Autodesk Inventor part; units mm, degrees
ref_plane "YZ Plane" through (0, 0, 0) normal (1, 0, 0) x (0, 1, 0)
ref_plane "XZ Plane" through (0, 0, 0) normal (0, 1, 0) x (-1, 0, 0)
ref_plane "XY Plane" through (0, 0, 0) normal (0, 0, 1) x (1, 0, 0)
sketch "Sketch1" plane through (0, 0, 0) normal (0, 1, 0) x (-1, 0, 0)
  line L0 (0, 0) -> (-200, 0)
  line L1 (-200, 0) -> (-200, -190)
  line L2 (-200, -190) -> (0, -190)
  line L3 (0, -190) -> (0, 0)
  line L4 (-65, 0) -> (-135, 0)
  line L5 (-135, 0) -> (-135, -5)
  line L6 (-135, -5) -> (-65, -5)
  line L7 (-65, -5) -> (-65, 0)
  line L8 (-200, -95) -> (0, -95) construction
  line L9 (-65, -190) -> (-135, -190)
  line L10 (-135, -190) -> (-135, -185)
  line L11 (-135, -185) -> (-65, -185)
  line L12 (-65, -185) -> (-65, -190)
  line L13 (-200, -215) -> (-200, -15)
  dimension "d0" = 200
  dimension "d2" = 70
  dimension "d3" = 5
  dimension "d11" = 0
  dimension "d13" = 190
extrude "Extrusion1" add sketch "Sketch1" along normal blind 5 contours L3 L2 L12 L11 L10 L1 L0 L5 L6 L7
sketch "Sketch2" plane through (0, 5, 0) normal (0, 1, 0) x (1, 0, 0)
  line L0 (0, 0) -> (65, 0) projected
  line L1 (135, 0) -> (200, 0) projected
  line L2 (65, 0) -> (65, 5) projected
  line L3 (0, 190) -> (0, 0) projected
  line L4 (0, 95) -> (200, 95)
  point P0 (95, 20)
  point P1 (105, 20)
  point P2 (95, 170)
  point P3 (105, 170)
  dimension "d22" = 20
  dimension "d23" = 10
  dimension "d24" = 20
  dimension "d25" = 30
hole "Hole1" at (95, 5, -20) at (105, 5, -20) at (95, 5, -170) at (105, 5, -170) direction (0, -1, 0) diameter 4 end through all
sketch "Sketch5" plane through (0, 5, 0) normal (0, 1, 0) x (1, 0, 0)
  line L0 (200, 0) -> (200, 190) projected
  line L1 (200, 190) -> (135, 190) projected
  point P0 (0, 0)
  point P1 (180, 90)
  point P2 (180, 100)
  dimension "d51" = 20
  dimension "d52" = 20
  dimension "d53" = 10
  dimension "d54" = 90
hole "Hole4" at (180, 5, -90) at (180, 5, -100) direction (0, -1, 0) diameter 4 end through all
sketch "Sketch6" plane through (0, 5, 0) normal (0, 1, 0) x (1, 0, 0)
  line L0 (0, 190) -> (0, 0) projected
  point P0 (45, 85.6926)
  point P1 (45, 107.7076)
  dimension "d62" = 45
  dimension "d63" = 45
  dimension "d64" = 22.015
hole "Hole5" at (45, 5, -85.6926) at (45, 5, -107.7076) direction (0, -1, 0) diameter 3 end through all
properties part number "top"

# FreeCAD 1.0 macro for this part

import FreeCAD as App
import Part
import Sketcher

V = App.Vector

doc = App.newDocument("Part")
params = doc.addObject("Spreadsheet::Sheet", "Params")
for row, (alias, value) in enumerate([
    ("sketch1_width", "70 mm"),
    ("sketch1_height", "190 mm"),
    ("sketch1_height2", "5 mm"),
    ("pad1_length", "5 mm"),
    ("sketch2_diameter", "4 mm"),
    ("hole_diameter", "4 mm"),
    ("sketch3_diameter", "4 mm"),
    ("hole2_diameter", "4 mm"),
    ("sketch4_diameter", "3 mm"),
    ("hole3_diameter", "3 mm"),
], start=1):
    params.set(f"A{row}", alias)
    params.set(f"B{row}", "=" + value)
    params.setAlias(f"B{row}", alias)

body = doc.addObject("PartDesign::Body", "Body")

sketch1 = doc.addObject("Sketcher::SketchObject", "Sketch")
body.addObject(sketch1)
sketch1.AttachmentSupport = (doc.XZ_Plane, [""])
sketch1.MapMode = "FlatFace"
sketch1.addGeometry([
    Part.LineSegment(V(0, -190, 0), V(0, 0, 0)),
    Part.LineSegment(V(0, 0, 0), V(65, 0, 0)),
    Part.LineSegment(V(65, 0, 0), V(65, -5, 0)),
    Part.LineSegment(V(65, -5, 0), V(135, -5, 0)),
    Part.LineSegment(V(135, -5, 0), V(135, 0, 0)),
    Part.LineSegment(V(135, 0, 0), V(200, 0, 0)),
    Part.LineSegment(V(200, 0, 0), V(200, -190, 0)),
    Part.LineSegment(V(200, -190, 0), V(135, -190, 0)),
    Part.LineSegment(V(135, -190, 0), V(135, -185, 0)),
    Part.LineSegment(V(135, -185, 0), V(65, -185, 0)),
    Part.LineSegment(V(65, -185, 0), V(65, -190, 0)),
    Part.LineSegment(V(65, -190, 0), V(0, -190, 0)),
], False)
sketch1.addConstraint([
    Sketcher.Constraint("Coincident", 0, 2, 1, 1),
    Sketcher.Constraint("Coincident", 1, 2, 2, 1),
    Sketcher.Constraint("Coincident", 2, 2, 3, 1),
    Sketcher.Constraint("Coincident", 3, 2, 4, 1),
    Sketcher.Constraint("Coincident", 4, 2, 5, 1),
    Sketcher.Constraint("Coincident", 5, 2, 6, 1),
    Sketcher.Constraint("Coincident", 6, 2, 7, 1),
    Sketcher.Constraint("Coincident", 7, 2, 8, 1),
    Sketcher.Constraint("Coincident", 8, 2, 9, 1),
    Sketcher.Constraint("Coincident", 9, 2, 10, 1),
    Sketcher.Constraint("Coincident", 10, 2, 11, 1),
    Sketcher.Constraint("Coincident", 11, 2, 0, 1),
    Sketcher.Constraint("Vertical", 0),
    Sketcher.Constraint("Horizontal", 1),
    Sketcher.Constraint("Vertical", 2),
    Sketcher.Constraint("Horizontal", 3),
    Sketcher.Constraint("Vertical", 4),
    Sketcher.Constraint("Horizontal", 5),
    Sketcher.Constraint("Vertical", 6),
    Sketcher.Constraint("Horizontal", 7),
    Sketcher.Constraint("Vertical", 8),
    Sketcher.Constraint("Horizontal", 9),
    Sketcher.Constraint("Vertical", 10),
    Sketcher.Constraint("Horizontal", 11),
    Sketcher.Constraint("Coincident", 0, 2, -1, 1),
    Sketcher.Constraint("PointOnObject", 4, 2, -1),
    Sketcher.Constraint("Horizontal", 7, 2, 10, 2),
    Sketcher.Constraint("Vertical", 4, 2, 7, 2),
    Sketcher.Constraint("Vertical", 2, 2, 9, 2),
    Sketcher.Constraint("Equal", 1, 5),
    Sketcher.Constraint("Equal", 4, 8),
    Sketcher.Constraint("DistanceX", 3, 1, 3, 2, 70.0),
    Sketcher.Constraint("DistanceY", 0, 1, 0, 2, 190.0),
    Sketcher.Constraint("DistanceY", 2, 2, 2, 1, 5.0),
    Sketcher.Constraint("DistanceX", -1, 1, 5, 2, 200.0),
])
sketch1.setExpression("Constraints[31]", "Params.sketch1_width")
sketch1.setExpression("Constraints[32]", "Params.sketch1_height")
sketch1.setExpression("Constraints[33]", "Params.sketch1_height2")
pad1 = doc.addObject("PartDesign::Pad", "Pad")
body.addObject(pad1)
pad1.Profile = sketch1
pad1.setExpression("Length", "Params.pad1_length")
pad1.Reversed = True

sketch2 = doc.addObject("Sketcher::SketchObject", "Sketch001")
body.addObject(sketch2)
sketch2.AttachmentSupport = (doc.XZ_Plane, [""])
sketch2.MapMode = "FlatFace"
sketch2.AttachmentOffset = App.Placement(V(0, 0, -5), App.Rotation())
sketch2.addGeometry([
    Part.Circle(V(95, -20, 0), V(0, 0, 1), 2),
    Part.Circle(V(105, -20, 0), V(0, 0, 1), 2),
    Part.Circle(V(95, -170, 0), V(0, 0, 1), 2),
    Part.Circle(V(105, -170, 0), V(0, 0, 1), 2),
], False)
sketch2.addConstraint([
    Sketcher.Constraint("Equal", 0, 1),
    Sketcher.Constraint("Equal", 1, 2),
    Sketcher.Constraint("Equal", 2, 3),
    Sketcher.Constraint("Horizontal", 0, 3, 1, 3),
    Sketcher.Constraint("Horizontal", 2, 3, 3, 3),
    Sketcher.Constraint("Vertical", 0, 3, 2, 3),
    Sketcher.Constraint("Vertical", 1, 3, 3, 3),
    Sketcher.Constraint("Diameter", 0, 4.0),
    Sketcher.Constraint("DistanceX", -1, 1, 0, 3, 95.0),
    Sketcher.Constraint("DistanceY", 0, 3, -1, 1, 20.0),
    Sketcher.Constraint("DistanceX", -1, 1, 1, 3, 105.0),
    Sketcher.Constraint("DistanceY", 2, 3, -1, 1, 170.0),
])
sketch2.setExpression("Constraints[7]", "Params.sketch2_diameter")
doc.recompute()
hole = doc.addObject("PartDesign::Hole", "Hole")
body.addObject(hole)
hole.Profile = sketch2
hole.ThreadType = "None"
hole.setExpression("Diameter", "Params.hole_diameter")
hole.DepthType = "ThroughAll"
hole.Reversed = True

sketch3 = doc.addObject("Sketcher::SketchObject", "Sketch002")
body.addObject(sketch3)
sketch3.AttachmentSupport = (doc.XZ_Plane, [""])
sketch3.MapMode = "FlatFace"
sketch3.AttachmentOffset = App.Placement(V(0, 0, -5), App.Rotation())
sketch3.addGeometry([
    Part.Circle(V(180, -90, 0), V(0, 0, 1), 2),
    Part.Circle(V(180, -100, 0), V(0, 0, 1), 2),
], False)
sketch3.addConstraint([
    Sketcher.Constraint("Equal", 0, 1),
    Sketcher.Constraint("Vertical", 0, 3, 1, 3),
    Sketcher.Constraint("Diameter", 0, 4.0),
    Sketcher.Constraint("DistanceX", -1, 1, 0, 3, 180.0),
    Sketcher.Constraint("DistanceY", 0, 3, -1, 1, 90.0),
    Sketcher.Constraint("DistanceY", 1, 3, -1, 1, 100.0),
])
sketch3.setExpression("Constraints[2]", "Params.sketch3_diameter")
doc.recompute()
hole2 = doc.addObject("PartDesign::Hole", "Hole001")
body.addObject(hole2)
hole2.Profile = sketch3
hole2.ThreadType = "None"
hole2.setExpression("Diameter", "Params.hole2_diameter")
hole2.DepthType = "ThroughAll"
hole2.Reversed = True

sketch4 = doc.addObject("Sketcher::SketchObject", "Sketch003")
body.addObject(sketch4)
sketch4.AttachmentSupport = (doc.XZ_Plane, [""])
sketch4.MapMode = "FlatFace"
sketch4.AttachmentOffset = App.Placement(V(0, 0, -5), App.Rotation())
sketch4.addGeometry([
    Part.Circle(V(45, -85.7, 0), V(0, 0, 1), 1.5),
    Part.Circle(V(45, -107.7, 0), V(0, 0, 1), 1.5),
], False)
sketch4.addConstraint([
    Sketcher.Constraint("Equal", 0, 1),
    Sketcher.Constraint("Vertical", 0, 3, 1, 3),
    Sketcher.Constraint("Diameter", 0, 3.0),
    Sketcher.Constraint("DistanceX", -1, 1, 0, 3, 45.0),
    Sketcher.Constraint("DistanceY", 1, 3, 0, 3, 22.015),
    Sketcher.Constraint("DistanceY", 0, 3, -1, 1, 85.6926),
])
sketch4.setExpression("Constraints[2]", "Params.sketch4_diameter")
doc.recompute()
hole3 = doc.addObject("PartDesign::Hole", "Hole002")
body.addObject(hole3)
hole3.Profile = sketch4
hole3.ThreadType = "None"
hole3.setExpression("Diameter", "Params.hole3_diameter")
hole3.DepthType = "ThroughAll"
hole3.Reversed = True

doc.recompute()
